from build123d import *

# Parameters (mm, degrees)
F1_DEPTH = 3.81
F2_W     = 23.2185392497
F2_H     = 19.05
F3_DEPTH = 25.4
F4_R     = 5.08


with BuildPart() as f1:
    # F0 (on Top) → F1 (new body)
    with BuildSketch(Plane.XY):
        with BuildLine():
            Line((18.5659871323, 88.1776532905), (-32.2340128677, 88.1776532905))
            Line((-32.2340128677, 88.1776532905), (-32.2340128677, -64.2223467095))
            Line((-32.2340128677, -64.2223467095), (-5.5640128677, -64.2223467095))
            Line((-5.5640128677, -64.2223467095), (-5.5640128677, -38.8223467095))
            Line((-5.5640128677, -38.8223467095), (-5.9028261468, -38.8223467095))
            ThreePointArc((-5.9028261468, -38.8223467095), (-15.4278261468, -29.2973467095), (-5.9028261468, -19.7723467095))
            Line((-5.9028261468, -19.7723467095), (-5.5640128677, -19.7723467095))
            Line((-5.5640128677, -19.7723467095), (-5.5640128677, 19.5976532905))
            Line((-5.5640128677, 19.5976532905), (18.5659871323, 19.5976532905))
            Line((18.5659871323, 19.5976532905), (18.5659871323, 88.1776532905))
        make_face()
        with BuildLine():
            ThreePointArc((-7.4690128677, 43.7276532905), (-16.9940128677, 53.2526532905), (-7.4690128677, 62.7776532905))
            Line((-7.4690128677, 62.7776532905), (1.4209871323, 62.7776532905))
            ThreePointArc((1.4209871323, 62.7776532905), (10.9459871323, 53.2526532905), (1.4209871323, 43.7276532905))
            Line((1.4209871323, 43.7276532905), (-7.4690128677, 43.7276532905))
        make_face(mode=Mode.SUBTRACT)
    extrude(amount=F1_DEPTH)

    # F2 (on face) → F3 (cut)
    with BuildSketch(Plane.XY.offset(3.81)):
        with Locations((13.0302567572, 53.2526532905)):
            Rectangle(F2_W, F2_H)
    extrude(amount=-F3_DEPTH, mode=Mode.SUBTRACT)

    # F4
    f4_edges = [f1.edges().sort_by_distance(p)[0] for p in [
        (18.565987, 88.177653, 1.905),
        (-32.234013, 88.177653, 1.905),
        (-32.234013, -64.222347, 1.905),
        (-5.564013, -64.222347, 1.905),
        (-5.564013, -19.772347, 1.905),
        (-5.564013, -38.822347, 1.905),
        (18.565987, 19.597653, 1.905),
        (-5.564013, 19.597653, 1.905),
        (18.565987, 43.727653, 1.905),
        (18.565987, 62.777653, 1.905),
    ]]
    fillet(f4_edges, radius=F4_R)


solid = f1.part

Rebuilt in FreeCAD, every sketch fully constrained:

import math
import FreeCAD as App
import Part
import Sketcher
from FreeCAD import Vector
Q = App.Units.Quantity


def edges_at(feature, points):
    """Names of the edges that pass closest to the given points."""
    edges = feature.Shape.Edges
    near = lambda p: min(range(len(edges)), key=lambda i: edges[i].distToShape(Part.Vertex(*p))[0])
    return sorted({f"Edge{near(p) + 1}" for p in points})

doc = App.newDocument("Part")
body = doc.addObject("PartDesign::Body", "Body")

# Sketch on XY plane
sketch1 = doc.addObject("Sketcher::SketchObject", "Sketch")
body.addObject(sketch1)
sketch1.AttachmentSupport = (doc.XY_Plane, [""])
sketch1.MapMode = "FlatFace"
sketch1.addGeometry([
    Part.LineSegment(Vector(18.565987, 88.177653, 0), Vector(-32.234013, 88.177653, 0)),  # 0
    Part.LineSegment(Vector(-32.234013, 88.177653, 0), Vector(-32.234013, -64.222347, 0)),  # 1
    Part.LineSegment(Vector(-32.234013, -64.222347, 0), Vector(-5.564013, -64.222347, 0)),  # 2
    Part.LineSegment(Vector(-5.564013, -64.222347, 0), Vector(-5.564013, -38.822347, 0)),  # 3
    Part.LineSegment(Vector(-5.564013, -38.822347, 0), Vector(-5.902826, -38.822347, 0)),  # 4
    Part.ArcOfCircle(Part.Circle(Vector(-5.902826, -29.297347, 0), Vector(0, 0, 1), 9.525), math.radians(90), math.radians(270)),  # 5
    Part.LineSegment(Vector(-5.902826, -19.772347, 0), Vector(-5.564013, -19.772347, 0)),  # 6
    Part.LineSegment(Vector(-5.564013, -19.772347, 0), Vector(-5.564013, 19.597653, 0)),  # 7
    Part.LineSegment(Vector(-5.564013, 19.597653, 0), Vector(18.565987, 19.597653, 0)),  # 8
    Part.LineSegment(Vector(18.565987, 19.597653, 0), Vector(18.565987, 88.177653, 0)),  # 9
    Part.LineSegment(Vector(1.420987, 43.727653, 0), Vector(-7.469013, 43.727653, 0)),  # 10
    Part.ArcOfCircle(Part.Circle(Vector(-7.469013, 53.252653, 0), Vector(0, 0, 1), 9.525), math.radians(90), math.radians(270)),  # 11
    Part.LineSegment(Vector(-7.469013, 62.777653, 0), Vector(1.420987, 62.777653, 0)),  # 12
    Part.ArcOfCircle(Part.Circle(Vector(1.420987, 53.252653, 0), Vector(0, 0, 1), 9.525), math.radians(-90), math.radians(90)),  # 13
], False)
sketch1.addConstraint([
    Sketcher.Constraint("Coincident", 0, 2, 1, 1),
    Sketcher.Constraint("Coincident", 1, 2, 2, 1),
    Sketcher.Constraint("Coincident", 2, 2, 3, 1),
    Sketcher.Constraint("Coincident", 3, 2, 4, 1),
    Sketcher.Constraint("Tangent", 4, 2, 5, 2),
    Sketcher.Constraint("Tangent", 5, 1, 6, 1),
    Sketcher.Constraint("Coincident", 6, 2, 7, 1),
    Sketcher.Constraint("Coincident", 7, 2, 8, 1),
    Sketcher.Constraint("Coincident", 8, 2, 9, 1),
    Sketcher.Constraint("Coincident", 9, 2, 0, 1),
    Sketcher.Constraint("Tangent", 10, 2, 11, 2),
    Sketcher.Constraint("Tangent", 11, 1, 12, 1),
    Sketcher.Constraint("Tangent", 12, 2, 13, 2),
    Sketcher.Constraint("Tangent", 13, 1, 10, 1),
    Sketcher.Constraint("Horizontal", 0),
    Sketcher.Constraint("Vertical", 1),
    Sketcher.Constraint("Horizontal", 2),
    Sketcher.Constraint("Vertical", 3),
    Sketcher.Constraint("Horizontal", 4),
    Sketcher.Constraint("Horizontal", 6),
    Sketcher.Constraint("Vertical", 7),
    Sketcher.Constraint("Horizontal", 8),
    Sketcher.Constraint("Vertical", 9),
    Sketcher.Constraint("Horizontal", 10),
    Sketcher.Constraint("Horizontal", 12),
    Sketcher.Constraint("Equal", 5, 11),
    Sketcher.Constraint("Vertical", 3, 2, 6, 2),
    Sketcher.Constraint("DistanceX", 0, 2, 0, 1, Q("2 in")),
    Sketcher.Constraint("DistanceY", 1, 2, 1, 1, Q("6 in")),
    Sketcher.Constraint("DistanceY", 3, 1, 3, 2, Q("1 in")),
    Sketcher.Constraint("DistanceY", 9, 1, 9, 2, Q("2.7 in")),
    Sketcher.Constraint("Radius", 5, Q("0.375 in")),
    Sketcher.Constraint("DistanceY", 11, 1, 0, 2, Q("1 in")),
    Sketcher.Constraint("DistanceX", 2, 1, 2, 2, Q("1.05 in")),
    Sketcher.Constraint("DistanceX", 10, 2, 10, 1, Q("0.35 in")),
    Sketcher.Constraint("DistanceX", 0, 2, 11, 3, Q("0.975 in")),
    Sketcher.Constraint("DistanceX", 4, 2, 4, 1, Q("0.338813 mm")),
    Sketcher.Constraint("DistanceX", 5, 3, -1, 1, Q("5.902826 mm")),
    Sketcher.Constraint("DistanceY", 5, 3, -1, 1, Q("29.297347 mm")),
])
pad1 = doc.addObject("PartDesign::Pad", "Pad")
body.addObject(pad1)
pad1.Profile = sketch1
pad1.Length = Q("0.15 in")

# Sketch on XY plane
sketch2 = doc.addObject("Sketcher::SketchObject", "Sketch001")
body.addObject(sketch2)
sketch2.AttachmentSupport = (doc.XY_Plane, [""])
sketch2.MapMode = "FlatFace"
sketch2.AttachmentOffset = App.Placement(Vector(0, 0, 0.15 * 25.4), App.Rotation())
sketch2.addGeometry([
    Part.LineSegment(Vector(1.420987, 62.777653, 0), Vector(1.420987, 43.727653, 0)),
    Part.LineSegment(Vector(1.420987, 43.727653, 0), Vector(24.639526, 43.727653, 0)),
    Part.LineSegment(Vector(24.639526, 43.727653, 0), Vector(24.639526, 62.777653, 0)),
    Part.LineSegment(Vector(24.639526, 62.777653, 0), Vector(1.420987, 62.777653, 0)),
], False)
sketch2.addConstraint([
    Sketcher.Constraint("Coincident", 0, 2, 1, 1),
    Sketcher.Constraint("Coincident", 1, 2, 2, 1),
    Sketcher.Constraint("Coincident", 2, 2, 3, 1),
    Sketcher.Constraint("Coincident", 3, 2, 0, 1),
    Sketcher.Constraint("Vertical", 0),
    Sketcher.Constraint("Horizontal", 1),
    Sketcher.Constraint("Vertical", 2),
    Sketcher.Constraint("Horizontal", 3),
    Sketcher.Constraint("DistanceY", 0, 2, 0, 1, Q("0.75 in")),
    Sketcher.Constraint("DistanceX", 1, 1, 1, 2, Q("23.218539 mm")),
    Sketcher.Constraint("DistanceX", -1, 1, 0, 2, Q("1.420987 mm")),
    Sketcher.Constraint("DistanceY", -1, 1, 0, 2, Q("43.727653 mm")),
])
pocket1 = doc.addObject("PartDesign::Pocket", "Pocket")
body.addObject(pocket1)
pocket1.Profile = sketch2
pocket1.Length = Q("1 in")
doc.recompute()

fillet = doc.addObject("PartDesign::Fillet", "Fillet")
body.addObject(fillet)
fillet.Base = (pocket1, edges_at(pocket1, [
    (18.566, 88.178, 1.905),
    (-32.234, 88.178, 1.905),
    (-32.234, -64.222, 1.905),
    (-5.564, -64.222, 1.905),
    (-5.564, -19.772, 1.905),
    (-5.564, -38.822, 1.905),
    (18.566, 19.598, 1.905),
    (-5.564, 19.598, 1.905),
    (18.566, 43.728, 1.905),
    (18.566, 62.778, 1.905),
]))
fillet.Radius = Q("0.2 in")

doc.recompute()
